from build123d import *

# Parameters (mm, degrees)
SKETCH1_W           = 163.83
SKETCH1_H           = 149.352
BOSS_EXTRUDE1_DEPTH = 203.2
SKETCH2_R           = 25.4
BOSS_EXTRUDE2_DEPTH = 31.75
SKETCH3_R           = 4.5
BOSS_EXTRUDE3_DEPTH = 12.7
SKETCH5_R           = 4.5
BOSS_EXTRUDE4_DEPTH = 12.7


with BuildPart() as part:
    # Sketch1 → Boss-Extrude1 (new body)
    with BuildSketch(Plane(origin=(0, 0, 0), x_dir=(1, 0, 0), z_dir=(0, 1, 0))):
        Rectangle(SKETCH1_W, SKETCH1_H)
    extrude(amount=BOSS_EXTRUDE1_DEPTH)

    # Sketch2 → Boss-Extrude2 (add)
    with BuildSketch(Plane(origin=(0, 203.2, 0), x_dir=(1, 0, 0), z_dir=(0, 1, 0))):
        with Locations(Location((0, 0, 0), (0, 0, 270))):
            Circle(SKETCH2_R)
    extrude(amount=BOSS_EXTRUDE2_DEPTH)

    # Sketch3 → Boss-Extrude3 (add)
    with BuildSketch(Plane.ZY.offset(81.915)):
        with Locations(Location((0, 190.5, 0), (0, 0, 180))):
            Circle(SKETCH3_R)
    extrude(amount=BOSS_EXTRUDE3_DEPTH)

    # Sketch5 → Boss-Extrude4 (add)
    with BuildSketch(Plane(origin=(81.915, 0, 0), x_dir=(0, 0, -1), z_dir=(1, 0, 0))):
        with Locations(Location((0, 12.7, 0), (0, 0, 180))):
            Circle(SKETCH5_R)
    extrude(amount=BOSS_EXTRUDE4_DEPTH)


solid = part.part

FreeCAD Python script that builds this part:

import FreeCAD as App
import Part
import Sketcher
Q = App.Units.Quantity

doc = App.newDocument("Part")
body = doc.addObject("PartDesign::Body", "Body")

# Sketch on XZ plane
sketch1 = body.newObject("Sketcher::SketchObject", "Sketch")
sketch1.AttachmentSupport = (doc.getObject("XZ_Plane"), [""])
sketch1.MapMode = "FlatFace"
sketch1.addGeometry([
    Part.LineSegment(App.Vector(-81.915, -74.676, 0), App.Vector(-81.915, 74.676, 0)),
    Part.LineSegment(App.Vector(-81.915, 74.676, 0), App.Vector(81.915, 74.676, 0)),
    Part.LineSegment(App.Vector(81.915, 74.676, 0), App.Vector(81.915, -74.676, 0)),
    Part.LineSegment(App.Vector(81.915, -74.676, 0), App.Vector(-81.915, -74.676, 0)),
], False)
sketch1.addConstraint([
    Sketcher.Constraint("Coincident", 0, 2, 1, 1),
    Sketcher.Constraint("Coincident", 1, 2, 2, 1),
    Sketcher.Constraint("Coincident", 2, 2, 3, 1),
    Sketcher.Constraint("Coincident", 3, 2, 0, 1),
    Sketcher.Constraint("Vertical", 0),
    Sketcher.Constraint("Horizontal", 1),
    Sketcher.Constraint("Vertical", 2),
    Sketcher.Constraint("Horizontal", 3),
    Sketcher.Constraint("Symmetric", 0, 2, 2, 2, -1, 1),
    Sketcher.Constraint("DistanceX", 1, 1, 1, 2, Q("6.45 in")),
    Sketcher.Constraint("DistanceY", 0, 1, 0, 2, Q("5.88 in")),
])
pad1 = body.newObject("PartDesign::Pad", "Pad")
pad1.Profile = sketch1
pad1.Length = Q("8 in")
pad1.Reversed = True

# Sketch on XZ plane
sketch2 = body.newObject("Sketcher::SketchObject", "Sketch001")
sketch2.AttachmentSupport = (doc.getObject("XZ_Plane"), [""])
sketch2.MapMode = "FlatFace"
sketch2.AttachmentOffset = App.Placement(App.Vector(0, 0, -8 * 25.4), App.Rotation())
sketch2.addGeometry(Part.Circle(App.Vector(0, 0, 0), App.Vector(0, 0, 1), 25.4), False)
sketch2.addConstraint([
    Sketcher.Constraint("Coincident", 0, 3, -1, 1),
    Sketcher.Constraint("Diameter", 0, Q("2 in")),
])
pad2 = body.newObject("PartDesign::Pad", "Pad001")
pad2.Profile = sketch2
pad2.Length = Q("1.25 in")
pad2.Reversed = True

# Sketch on YZ plane
sketch3 = body.newObject("Sketcher::SketchObject", "Sketch002")
sketch3.AttachmentSupport = (doc.getObject("YZ_Plane"), [""])
sketch3.MapMode = "FlatFace"
sketch3.AttachmentOffset = App.Placement(App.Vector(0, 0, -3.225 * 25.4), App.Rotation())
sketch3.addGeometry(Part.Circle(App.Vector(190.5, 0, 0), App.Vector(0, 0, 1), 4.5), False)
sketch3.addConstraint([
    Sketcher.Constraint("PointOnObject", 0, 3, -1),
    Sketcher.Constraint("DistanceX", -1, 1, 0, 3, Q("7.5 in")),
    Sketcher.Constraint("Diameter", 0, Q("9 mm")),
])
pad3 = body.newObject("PartDesign::Pad", "Pad002")
pad3.Profile = sketch3
pad3.Length = Q("0.5 in")
pad3.Reversed = True

# Sketch on YZ plane
sketch4 = body.newObject("Sketcher::SketchObject", "Sketch003")
sketch4.AttachmentSupport = (doc.getObject("YZ_Plane"), [""])
sketch4.MapMode = "FlatFace"
sketch4.AttachmentOffset = App.Placement(App.Vector(0, 0, 3.225 * 25.4), App.Rotation())
sketch4.addGeometry(Part.Circle(App.Vector(12.7, 0, 0), App.Vector(0, 0, 1), 4.5), False)
sketch4.addConstraint([
    Sketcher.Constraint("PointOnObject", 0, 3, -1),
    Sketcher.Constraint("DistanceX", -1, 1, 0, 3, Q("0.5 in")),
    Sketcher.Constraint("Diameter", 0, Q("9 mm")),
])
pad4 = body.newObject("PartDesign::Pad", "Pad003")
pad4.Profile = sketch4
pad4.Length = Q("0.5 in")

doc.recompute()
